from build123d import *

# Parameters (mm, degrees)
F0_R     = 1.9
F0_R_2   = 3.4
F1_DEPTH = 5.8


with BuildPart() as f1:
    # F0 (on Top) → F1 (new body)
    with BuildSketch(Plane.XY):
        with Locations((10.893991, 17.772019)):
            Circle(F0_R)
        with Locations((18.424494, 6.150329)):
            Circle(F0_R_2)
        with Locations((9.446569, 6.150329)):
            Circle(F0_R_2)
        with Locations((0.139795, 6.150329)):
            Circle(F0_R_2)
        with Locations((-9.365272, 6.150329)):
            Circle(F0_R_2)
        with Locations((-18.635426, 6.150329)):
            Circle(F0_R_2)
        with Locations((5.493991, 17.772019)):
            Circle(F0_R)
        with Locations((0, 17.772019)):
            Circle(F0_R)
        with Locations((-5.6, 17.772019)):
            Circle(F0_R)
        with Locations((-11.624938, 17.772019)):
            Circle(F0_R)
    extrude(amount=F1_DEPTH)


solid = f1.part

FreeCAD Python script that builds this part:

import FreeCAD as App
import Part
import Sketcher
Q = App.Units.Quantity

doc = App.newDocument("Part")
body = doc.addObject("PartDesign::Body", "Body")
body.AllowCompound = True

# Sketch on XY plane
sketch1 = body.newObject("Sketcher::SketchObject", "Sketch")
sketch1.AttachmentSupport = (doc.getObject("XY_Plane"), [""])
sketch1.MapMode = "FlatFace"
sketch1.addGeometry([
    Part.Circle(App.Vector(10.9, 17.8, 0), App.Vector(0, 0, 1), 1.9),  # 0
    Part.Circle(App.Vector(18.4, 6.2, 0), App.Vector(0, 0, 1), 3.4),  # 1
    Part.Circle(App.Vector(9.4, 6.2, 0), App.Vector(0, 0, 1), 3.4),  # 2
    Part.Circle(App.Vector(0.1, 6.2, 0), App.Vector(0, 0, 1), 3.4),  # 3
    Part.Circle(App.Vector(-9.4, 6.2, 0), App.Vector(0, 0, 1), 3.4),  # 4
    Part.Circle(App.Vector(-18.6, 6.2, 0), App.Vector(0, 0, 1), 3.4),  # 5
    Part.Circle(App.Vector(5.5, 17.8, 0), App.Vector(0, 0, 1), 1.9),  # 6
    Part.Circle(App.Vector(0, 17.8, 0), App.Vector(0, 0, 1), 1.9),  # 7
    Part.Circle(App.Vector(-5.6, 17.8, 0), App.Vector(0, 0, 1), 1.9),  # 8
    Part.Circle(App.Vector(-11.6, 17.8, 0), App.Vector(0, 0, 1), 1.9),  # 9
], False)
sketch1.addConstraint([
    Sketcher.Constraint("Equal", 1, 2),
    Sketcher.Constraint("Equal", 2, 3),
    Sketcher.Constraint("Equal", 3, 4),
    Sketcher.Constraint("Equal", 4, 5),
    Sketcher.Constraint("Equal", 0, 6),
    Sketcher.Constraint("Equal", 6, 7),
    Sketcher.Constraint("Equal", 7, 8),
    Sketcher.Constraint("Equal", 8, 9),
    Sketcher.Constraint("PointOnObject", 7, 3, -2),
    Sketcher.Constraint("Horizontal", 1, 3, 2, 3),
    Sketcher.Constraint("Horizontal", 2, 3, 3, 3),
    Sketcher.Constraint("Horizontal", 3, 3, 4, 3),
    Sketcher.Constraint("Horizontal", 4, 3, 5, 3),
    Sketcher.Constraint("Horizontal", 0, 3, 6, 3),
    Sketcher.Constraint("Horizontal", 6, 3, 7, 3),
    Sketcher.Constraint("Horizontal", 7, 3, 8, 3),
    Sketcher.Constraint("Horizontal", 8, 3, 9, 3),
    Sketcher.Constraint("Diameter", 0, Q("3.8 mm")),
    Sketcher.Constraint("Diameter", 1, Q("6.8 mm")),
    Sketcher.Constraint("DistanceX", 8, 3, -1, 1, Q("5.6 mm")),
    Sketcher.Constraint("DistanceX", 6, 3, 0, 3, Q("5.4 mm")),
    Sketcher.Constraint("DistanceX", 3, 3, 1, 3, Q("18.284699 mm")),
    Sketcher.Constraint("DistanceX", -1, 1, 0, 3, Q("10.893991 mm")),
    Sketcher.Constraint("DistanceY", -1, 1, 0, 3, Q("17.772019 mm")),
    Sketcher.Constraint("DistanceY", -1, 1, 1, 3, Q("6.150329 mm")),
    Sketcher.Constraint("DistanceX", -1, 1, 2, 3, Q("9.446569 mm")),
    Sketcher.Constraint("DistanceX", 4, 3, -1, 1, Q("9.365272 mm")),
    Sketcher.Constraint("DistanceX", 5, 3, 3, 3, Q("18.775221 mm")),
    Sketcher.Constraint("DistanceX", 9, 3, 8, 3, Q("6.024938 mm")),
    Sketcher.Constraint("DistanceX", -1, 1, 1, 3, Q("18.424494 mm")),
])
pad1 = body.newObject("PartDesign::Pad", "Pad")
pad1.Profile = sketch1
pad1.Length = 5.8

doc.recompute()
